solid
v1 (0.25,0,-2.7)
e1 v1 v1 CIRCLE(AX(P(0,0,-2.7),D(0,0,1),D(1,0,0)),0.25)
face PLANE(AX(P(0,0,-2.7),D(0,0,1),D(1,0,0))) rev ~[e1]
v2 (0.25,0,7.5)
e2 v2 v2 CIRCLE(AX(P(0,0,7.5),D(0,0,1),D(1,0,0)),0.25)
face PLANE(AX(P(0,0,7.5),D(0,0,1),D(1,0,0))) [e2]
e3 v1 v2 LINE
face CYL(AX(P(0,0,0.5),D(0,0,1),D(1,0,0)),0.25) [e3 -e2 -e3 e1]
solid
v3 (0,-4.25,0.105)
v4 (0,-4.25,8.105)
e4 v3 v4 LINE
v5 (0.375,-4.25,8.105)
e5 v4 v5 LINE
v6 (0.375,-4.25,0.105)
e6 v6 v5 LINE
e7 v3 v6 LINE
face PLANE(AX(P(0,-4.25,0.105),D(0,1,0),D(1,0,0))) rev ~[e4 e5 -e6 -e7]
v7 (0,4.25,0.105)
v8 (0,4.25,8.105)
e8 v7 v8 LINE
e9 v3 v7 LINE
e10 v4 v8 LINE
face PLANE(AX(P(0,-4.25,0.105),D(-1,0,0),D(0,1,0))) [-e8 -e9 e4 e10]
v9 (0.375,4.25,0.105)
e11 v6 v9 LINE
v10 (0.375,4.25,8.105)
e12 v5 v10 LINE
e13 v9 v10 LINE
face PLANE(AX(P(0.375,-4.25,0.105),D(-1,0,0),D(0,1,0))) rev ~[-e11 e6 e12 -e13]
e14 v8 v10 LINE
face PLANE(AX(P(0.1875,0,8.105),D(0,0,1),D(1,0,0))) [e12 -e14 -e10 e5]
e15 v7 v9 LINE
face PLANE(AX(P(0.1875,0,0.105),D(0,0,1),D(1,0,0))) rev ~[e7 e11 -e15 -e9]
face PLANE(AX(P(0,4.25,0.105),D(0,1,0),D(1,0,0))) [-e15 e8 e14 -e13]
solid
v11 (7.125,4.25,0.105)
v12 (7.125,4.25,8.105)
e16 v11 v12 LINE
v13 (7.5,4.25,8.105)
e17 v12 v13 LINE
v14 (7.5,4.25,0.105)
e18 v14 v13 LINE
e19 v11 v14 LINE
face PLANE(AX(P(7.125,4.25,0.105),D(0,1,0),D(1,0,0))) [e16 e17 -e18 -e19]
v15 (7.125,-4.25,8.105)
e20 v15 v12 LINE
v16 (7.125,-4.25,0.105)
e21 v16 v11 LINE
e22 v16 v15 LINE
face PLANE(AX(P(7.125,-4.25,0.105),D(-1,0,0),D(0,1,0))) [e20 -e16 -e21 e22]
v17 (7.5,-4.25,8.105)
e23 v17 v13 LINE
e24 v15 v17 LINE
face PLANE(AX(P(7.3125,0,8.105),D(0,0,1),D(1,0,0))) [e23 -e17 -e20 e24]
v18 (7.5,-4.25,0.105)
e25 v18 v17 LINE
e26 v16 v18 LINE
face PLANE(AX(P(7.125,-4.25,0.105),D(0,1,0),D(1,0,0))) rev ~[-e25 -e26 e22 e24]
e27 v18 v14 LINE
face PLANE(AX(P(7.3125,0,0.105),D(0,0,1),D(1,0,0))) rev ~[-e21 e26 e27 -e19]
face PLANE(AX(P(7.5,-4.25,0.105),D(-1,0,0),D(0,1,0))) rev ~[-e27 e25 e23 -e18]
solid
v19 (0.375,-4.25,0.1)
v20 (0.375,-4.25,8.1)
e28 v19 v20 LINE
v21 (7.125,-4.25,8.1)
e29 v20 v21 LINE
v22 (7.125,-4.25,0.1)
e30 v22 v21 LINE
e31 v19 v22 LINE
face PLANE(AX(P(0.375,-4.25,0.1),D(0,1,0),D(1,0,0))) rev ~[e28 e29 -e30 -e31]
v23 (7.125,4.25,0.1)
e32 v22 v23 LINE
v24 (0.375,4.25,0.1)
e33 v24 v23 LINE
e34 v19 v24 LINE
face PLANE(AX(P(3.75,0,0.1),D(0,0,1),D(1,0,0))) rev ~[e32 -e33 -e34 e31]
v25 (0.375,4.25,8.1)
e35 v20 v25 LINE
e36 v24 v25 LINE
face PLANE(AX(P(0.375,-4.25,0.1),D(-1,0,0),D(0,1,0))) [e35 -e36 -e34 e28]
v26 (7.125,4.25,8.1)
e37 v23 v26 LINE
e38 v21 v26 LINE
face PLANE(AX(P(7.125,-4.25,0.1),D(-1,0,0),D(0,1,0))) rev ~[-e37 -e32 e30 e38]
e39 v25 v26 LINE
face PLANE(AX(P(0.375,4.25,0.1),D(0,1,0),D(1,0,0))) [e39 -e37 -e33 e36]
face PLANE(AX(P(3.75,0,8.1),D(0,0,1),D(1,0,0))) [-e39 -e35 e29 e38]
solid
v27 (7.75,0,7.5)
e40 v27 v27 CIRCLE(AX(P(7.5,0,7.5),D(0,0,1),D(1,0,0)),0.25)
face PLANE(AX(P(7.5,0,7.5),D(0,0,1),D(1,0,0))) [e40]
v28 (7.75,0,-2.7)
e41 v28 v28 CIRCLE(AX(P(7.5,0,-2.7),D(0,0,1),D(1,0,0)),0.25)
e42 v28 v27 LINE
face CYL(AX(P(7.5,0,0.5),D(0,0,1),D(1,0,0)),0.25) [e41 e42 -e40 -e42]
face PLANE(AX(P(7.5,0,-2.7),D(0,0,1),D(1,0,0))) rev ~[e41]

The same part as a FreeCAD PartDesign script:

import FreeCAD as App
import Part
import Sketcher
from FreeCAD import Vector

doc = App.newDocument("Part")
params = doc.addObject("Spreadsheet::Sheet", "Params")
for row, (alias, value) in enumerate([
    ("sketch1_height", "8.5 mm"),
    ("sketch1_width", "6.75 mm"),
    ("pad1_length", "8 mm"),
    ("sketch2_diameter", "0.5 mm"),
    ("pad2_length", "7 mm"),
    ("pad2_length2", "3.2 mm"),
    ("sketch3_height", "8.5 mm"),
    ("pad3_length", "8 mm"),
], start=1):
    params.set(f"A{row}", alias)
    params.set(f"B{row}", "=" + value)
    params.setAlias(f"B{row}", alias)

body = doc.addObject("PartDesign::Body", "Body")

# Sketch on XY plane
sketch1 = body.newObject("Sketcher::SketchObject", "Sketch")
sketch1.AttachmentSupport = (doc.getObject("XY_Plane"), [""])
sketch1.MapMode = "FlatFace"
sketch1.AttachmentOffset = App.Placement(Vector(0, 0, 0.1), App.Rotation())
sketch1.addGeometry(Part.LineSegment(Vector(0, 4, 0), Vector(0, -4, 0)), False)
sketch1.addGeometry(Part.LineSegment(Vector(0, -4, 0), Vector(7, -4, 0)), False)
sketch1.addGeometry(Part.LineSegment(Vector(7, -4, 0), Vector(7, 4, 0)), False)
sketch1.addGeometry(Part.LineSegment(Vector(7, 4, 0), Vector(0, 4, 0)), False)
sketch1.addConstraint(Sketcher.Constraint("Coincident", 0, 2, 1, 1))
sketch1.addConstraint(Sketcher.Constraint("Coincident", 1, 2, 2, 1))
sketch1.addConstraint(Sketcher.Constraint("Coincident", 2, 2, 3, 1))
sketch1.addConstraint(Sketcher.Constraint("Coincident", 3, 2, 0, 1))
sketch1.addConstraint(Sketcher.Constraint("Vertical", 0))
sketch1.addConstraint(Sketcher.Constraint("Horizontal", 1))
sketch1.addConstraint(Sketcher.Constraint("Vertical", 2))
sketch1.addConstraint(Sketcher.Constraint("Horizontal", 3))
sketch1.addConstraint(Sketcher.Constraint("DistanceY", 0, 2, 0, 1, 8.5))
sketch1.addConstraint(Sketcher.Constraint("DistanceX", 1, 1, 1, 2, 6.75))
sketch1.addConstraint(Sketcher.Constraint("DistanceY", 0, 2, -1, 1, 4.25))
sketch1.addConstraint(Sketcher.Constraint("DistanceX", -1, 1, 0, 2, 0.375))
sketch1.setExpression("Constraints[8]", "Params.sketch1_height")
sketch1.setExpression("Constraints[9]", "Params.sketch1_width")
pad1 = body.newObject("PartDesign::Pad", "Pad")
pad1.Profile = sketch1
pad1.setExpression("Length", "Params.pad1_length")
body2 = doc.addObject("PartDesign::Body", "Body001")
body2.AllowCompound = True

# Sketch on XY plane
sketch2 = body2.newObject("Sketcher::SketchObject", "Sketch001")
sketch2.AttachmentSupport = (doc.getObject("XY_Plane001"), [""])
sketch2.MapMode = "FlatFace"
sketch2.AttachmentOffset = App.Placement(Vector(0, 0, 0.5), App.Rotation())
sketch2.addGeometry(Part.Circle(Vector(0, 0, 0), Vector(0, 0, 1), 0.25), False)
sketch2.addGeometry(Part.Circle(Vector(7.5, 0, 0), Vector(0, 0, 1), 0.25), False)
sketch2.addConstraint(Sketcher.Constraint("Coincident", 0, 3, -1, 1))
sketch2.addConstraint(Sketcher.Constraint("Equal", 0, 1))
sketch2.addConstraint(Sketcher.Constraint("PointOnObject", 1, 3, -1))
sketch2.addConstraint(Sketcher.Constraint("Diameter", 0, 0.5))
sketch2.addConstraint(Sketcher.Constraint("DistanceX", -1, 1, 1, 3, 7.5))
sketch2.setExpression("Constraints[3]", "Params.sketch2_diameter")
pad2 = body2.newObject("PartDesign::Pad", "Pad001")
pad2.Profile = sketch2
pad2.Type = "TwoLengths"
pad2.setExpression("Length", "Params.pad2_length")
pad2.setExpression("Length2", "Params.pad2_length2")
body3 = doc.addObject("PartDesign::Body", "Body002")
body3.AllowCompound = True

# Sketch on XY plane
sketch3 = body3.newObject("Sketcher::SketchObject", "Sketch002")
sketch3.AttachmentSupport = (doc.getObject("XY_Plane002"), [""])
sketch3.MapMode = "FlatFace"
sketch3.AttachmentOffset = App.Placement(Vector(0, 0, 0.105), App.Rotation())
sketch3.addGeometry(Part.LineSegment(Vector(0, 4.25, 0), Vector(0, -4.25, 0)), False)
sketch3.addGeometry(Part.LineSegment(Vector(0, -4.25, 0), Vector(0.38, -4.25, 0)), False)
sketch3.addGeometry(Part.LineSegment(Vector(0.38, -4.25, 0), Vector(0.38, 4.25, 0)), False)
sketch3.addGeometry(Part.LineSegment(Vector(0.38, 4.25, 0), Vector(0, 4.25, 0)), False)
sketch3.addGeometry(Part.LineSegment(Vector(7.12, 4.25, 0), Vector(7.12, -4.25, 0)), False)
sketch3.addGeometry(Part.LineSegment(Vector(7.12, -4.25, 0), Vector(7.5, -4.25, 0)), False)
sketch3.addGeometry(Part.LineSegment(Vector(7.5, -4.25, 0), Vector(7.5, 4.25, 0)), False)
sketch3.addGeometry(Part.LineSegment(Vector(7.5, 4.25, 0), Vector(7.12, 4.25, 0)), False)
sketch3.addConstraint(Sketcher.Constraint("Coincident", 0, 2, 1, 1))
sketch3.addConstraint(Sketcher.Constraint("Coincident", 1, 2, 2, 1))
sketch3.addConstraint(Sketcher.Constraint("Coincident", 2, 2, 3, 1))
sketch3.addConstraint(Sketcher.Constraint("Coincident", 3, 2, 0, 1))
sketch3.addConstraint(Sketcher.Constraint("Coincident", 4, 2, 5, 1))
sketch3.addConstraint(Sketcher.Constraint("Coincident", 5, 2, 6, 1))
sketch3.addConstraint(Sketcher.Constraint("Coincident", 6, 2, 7, 1))
sketch3.addConstraint(Sketcher.Constraint("Coincident", 7, 2, 4, 1))
sketch3.addConstraint(Sketcher.Constraint("Vertical", 0))
sketch3.addConstraint(Sketcher.Constraint("Horizontal", 1))
sketch3.addConstraint(Sketcher.Constraint("Vertical", 2))
sketch3.addConstraint(Sketcher.Constraint("Horizontal", 3))
sketch3.addConstraint(Sketcher.Constraint("Vertical", 4))
sketch3.addConstraint(Sketcher.Constraint("Horizontal", 5))
sketch3.addConstraint(Sketcher.Constraint("Vertical", 6))
sketch3.addConstraint(Sketcher.Constraint("Horizontal", 7))
sketch3.addConstraint(Sketcher.Constraint("Symmetric", 0, 2, 3, 2, -1, 1))
sketch3.addConstraint(Sketcher.Constraint("Horizontal", 1, 2, 4, 2))
sketch3.addConstraint(Sketcher.Constraint("Horizontal", 3, 2, 6, 2))
sketch3.addConstraint(Sketcher.Constraint("Equal", 3, 5))
sketch3.addConstraint(Sketcher.Constraint("DistanceY", 0, 2, 0, 1, 8.5))
sketch3.addConstraint(Sketcher.Constraint("DistanceX", -1, 1, 5, 2, 7.5))
sketch3.addConstraint(Sketcher.Constraint("DistanceX", 1, 1, 1, 2, 0.375))
sketch3.setExpression("Constraints[20]", "Params.sketch3_height")
pad3 = body3.newObject("PartDesign::Pad", "Pad002")
pad3.Profile = sketch3
pad3.setExpression("Length", "Params.pad3_length")

doc.recompute()
